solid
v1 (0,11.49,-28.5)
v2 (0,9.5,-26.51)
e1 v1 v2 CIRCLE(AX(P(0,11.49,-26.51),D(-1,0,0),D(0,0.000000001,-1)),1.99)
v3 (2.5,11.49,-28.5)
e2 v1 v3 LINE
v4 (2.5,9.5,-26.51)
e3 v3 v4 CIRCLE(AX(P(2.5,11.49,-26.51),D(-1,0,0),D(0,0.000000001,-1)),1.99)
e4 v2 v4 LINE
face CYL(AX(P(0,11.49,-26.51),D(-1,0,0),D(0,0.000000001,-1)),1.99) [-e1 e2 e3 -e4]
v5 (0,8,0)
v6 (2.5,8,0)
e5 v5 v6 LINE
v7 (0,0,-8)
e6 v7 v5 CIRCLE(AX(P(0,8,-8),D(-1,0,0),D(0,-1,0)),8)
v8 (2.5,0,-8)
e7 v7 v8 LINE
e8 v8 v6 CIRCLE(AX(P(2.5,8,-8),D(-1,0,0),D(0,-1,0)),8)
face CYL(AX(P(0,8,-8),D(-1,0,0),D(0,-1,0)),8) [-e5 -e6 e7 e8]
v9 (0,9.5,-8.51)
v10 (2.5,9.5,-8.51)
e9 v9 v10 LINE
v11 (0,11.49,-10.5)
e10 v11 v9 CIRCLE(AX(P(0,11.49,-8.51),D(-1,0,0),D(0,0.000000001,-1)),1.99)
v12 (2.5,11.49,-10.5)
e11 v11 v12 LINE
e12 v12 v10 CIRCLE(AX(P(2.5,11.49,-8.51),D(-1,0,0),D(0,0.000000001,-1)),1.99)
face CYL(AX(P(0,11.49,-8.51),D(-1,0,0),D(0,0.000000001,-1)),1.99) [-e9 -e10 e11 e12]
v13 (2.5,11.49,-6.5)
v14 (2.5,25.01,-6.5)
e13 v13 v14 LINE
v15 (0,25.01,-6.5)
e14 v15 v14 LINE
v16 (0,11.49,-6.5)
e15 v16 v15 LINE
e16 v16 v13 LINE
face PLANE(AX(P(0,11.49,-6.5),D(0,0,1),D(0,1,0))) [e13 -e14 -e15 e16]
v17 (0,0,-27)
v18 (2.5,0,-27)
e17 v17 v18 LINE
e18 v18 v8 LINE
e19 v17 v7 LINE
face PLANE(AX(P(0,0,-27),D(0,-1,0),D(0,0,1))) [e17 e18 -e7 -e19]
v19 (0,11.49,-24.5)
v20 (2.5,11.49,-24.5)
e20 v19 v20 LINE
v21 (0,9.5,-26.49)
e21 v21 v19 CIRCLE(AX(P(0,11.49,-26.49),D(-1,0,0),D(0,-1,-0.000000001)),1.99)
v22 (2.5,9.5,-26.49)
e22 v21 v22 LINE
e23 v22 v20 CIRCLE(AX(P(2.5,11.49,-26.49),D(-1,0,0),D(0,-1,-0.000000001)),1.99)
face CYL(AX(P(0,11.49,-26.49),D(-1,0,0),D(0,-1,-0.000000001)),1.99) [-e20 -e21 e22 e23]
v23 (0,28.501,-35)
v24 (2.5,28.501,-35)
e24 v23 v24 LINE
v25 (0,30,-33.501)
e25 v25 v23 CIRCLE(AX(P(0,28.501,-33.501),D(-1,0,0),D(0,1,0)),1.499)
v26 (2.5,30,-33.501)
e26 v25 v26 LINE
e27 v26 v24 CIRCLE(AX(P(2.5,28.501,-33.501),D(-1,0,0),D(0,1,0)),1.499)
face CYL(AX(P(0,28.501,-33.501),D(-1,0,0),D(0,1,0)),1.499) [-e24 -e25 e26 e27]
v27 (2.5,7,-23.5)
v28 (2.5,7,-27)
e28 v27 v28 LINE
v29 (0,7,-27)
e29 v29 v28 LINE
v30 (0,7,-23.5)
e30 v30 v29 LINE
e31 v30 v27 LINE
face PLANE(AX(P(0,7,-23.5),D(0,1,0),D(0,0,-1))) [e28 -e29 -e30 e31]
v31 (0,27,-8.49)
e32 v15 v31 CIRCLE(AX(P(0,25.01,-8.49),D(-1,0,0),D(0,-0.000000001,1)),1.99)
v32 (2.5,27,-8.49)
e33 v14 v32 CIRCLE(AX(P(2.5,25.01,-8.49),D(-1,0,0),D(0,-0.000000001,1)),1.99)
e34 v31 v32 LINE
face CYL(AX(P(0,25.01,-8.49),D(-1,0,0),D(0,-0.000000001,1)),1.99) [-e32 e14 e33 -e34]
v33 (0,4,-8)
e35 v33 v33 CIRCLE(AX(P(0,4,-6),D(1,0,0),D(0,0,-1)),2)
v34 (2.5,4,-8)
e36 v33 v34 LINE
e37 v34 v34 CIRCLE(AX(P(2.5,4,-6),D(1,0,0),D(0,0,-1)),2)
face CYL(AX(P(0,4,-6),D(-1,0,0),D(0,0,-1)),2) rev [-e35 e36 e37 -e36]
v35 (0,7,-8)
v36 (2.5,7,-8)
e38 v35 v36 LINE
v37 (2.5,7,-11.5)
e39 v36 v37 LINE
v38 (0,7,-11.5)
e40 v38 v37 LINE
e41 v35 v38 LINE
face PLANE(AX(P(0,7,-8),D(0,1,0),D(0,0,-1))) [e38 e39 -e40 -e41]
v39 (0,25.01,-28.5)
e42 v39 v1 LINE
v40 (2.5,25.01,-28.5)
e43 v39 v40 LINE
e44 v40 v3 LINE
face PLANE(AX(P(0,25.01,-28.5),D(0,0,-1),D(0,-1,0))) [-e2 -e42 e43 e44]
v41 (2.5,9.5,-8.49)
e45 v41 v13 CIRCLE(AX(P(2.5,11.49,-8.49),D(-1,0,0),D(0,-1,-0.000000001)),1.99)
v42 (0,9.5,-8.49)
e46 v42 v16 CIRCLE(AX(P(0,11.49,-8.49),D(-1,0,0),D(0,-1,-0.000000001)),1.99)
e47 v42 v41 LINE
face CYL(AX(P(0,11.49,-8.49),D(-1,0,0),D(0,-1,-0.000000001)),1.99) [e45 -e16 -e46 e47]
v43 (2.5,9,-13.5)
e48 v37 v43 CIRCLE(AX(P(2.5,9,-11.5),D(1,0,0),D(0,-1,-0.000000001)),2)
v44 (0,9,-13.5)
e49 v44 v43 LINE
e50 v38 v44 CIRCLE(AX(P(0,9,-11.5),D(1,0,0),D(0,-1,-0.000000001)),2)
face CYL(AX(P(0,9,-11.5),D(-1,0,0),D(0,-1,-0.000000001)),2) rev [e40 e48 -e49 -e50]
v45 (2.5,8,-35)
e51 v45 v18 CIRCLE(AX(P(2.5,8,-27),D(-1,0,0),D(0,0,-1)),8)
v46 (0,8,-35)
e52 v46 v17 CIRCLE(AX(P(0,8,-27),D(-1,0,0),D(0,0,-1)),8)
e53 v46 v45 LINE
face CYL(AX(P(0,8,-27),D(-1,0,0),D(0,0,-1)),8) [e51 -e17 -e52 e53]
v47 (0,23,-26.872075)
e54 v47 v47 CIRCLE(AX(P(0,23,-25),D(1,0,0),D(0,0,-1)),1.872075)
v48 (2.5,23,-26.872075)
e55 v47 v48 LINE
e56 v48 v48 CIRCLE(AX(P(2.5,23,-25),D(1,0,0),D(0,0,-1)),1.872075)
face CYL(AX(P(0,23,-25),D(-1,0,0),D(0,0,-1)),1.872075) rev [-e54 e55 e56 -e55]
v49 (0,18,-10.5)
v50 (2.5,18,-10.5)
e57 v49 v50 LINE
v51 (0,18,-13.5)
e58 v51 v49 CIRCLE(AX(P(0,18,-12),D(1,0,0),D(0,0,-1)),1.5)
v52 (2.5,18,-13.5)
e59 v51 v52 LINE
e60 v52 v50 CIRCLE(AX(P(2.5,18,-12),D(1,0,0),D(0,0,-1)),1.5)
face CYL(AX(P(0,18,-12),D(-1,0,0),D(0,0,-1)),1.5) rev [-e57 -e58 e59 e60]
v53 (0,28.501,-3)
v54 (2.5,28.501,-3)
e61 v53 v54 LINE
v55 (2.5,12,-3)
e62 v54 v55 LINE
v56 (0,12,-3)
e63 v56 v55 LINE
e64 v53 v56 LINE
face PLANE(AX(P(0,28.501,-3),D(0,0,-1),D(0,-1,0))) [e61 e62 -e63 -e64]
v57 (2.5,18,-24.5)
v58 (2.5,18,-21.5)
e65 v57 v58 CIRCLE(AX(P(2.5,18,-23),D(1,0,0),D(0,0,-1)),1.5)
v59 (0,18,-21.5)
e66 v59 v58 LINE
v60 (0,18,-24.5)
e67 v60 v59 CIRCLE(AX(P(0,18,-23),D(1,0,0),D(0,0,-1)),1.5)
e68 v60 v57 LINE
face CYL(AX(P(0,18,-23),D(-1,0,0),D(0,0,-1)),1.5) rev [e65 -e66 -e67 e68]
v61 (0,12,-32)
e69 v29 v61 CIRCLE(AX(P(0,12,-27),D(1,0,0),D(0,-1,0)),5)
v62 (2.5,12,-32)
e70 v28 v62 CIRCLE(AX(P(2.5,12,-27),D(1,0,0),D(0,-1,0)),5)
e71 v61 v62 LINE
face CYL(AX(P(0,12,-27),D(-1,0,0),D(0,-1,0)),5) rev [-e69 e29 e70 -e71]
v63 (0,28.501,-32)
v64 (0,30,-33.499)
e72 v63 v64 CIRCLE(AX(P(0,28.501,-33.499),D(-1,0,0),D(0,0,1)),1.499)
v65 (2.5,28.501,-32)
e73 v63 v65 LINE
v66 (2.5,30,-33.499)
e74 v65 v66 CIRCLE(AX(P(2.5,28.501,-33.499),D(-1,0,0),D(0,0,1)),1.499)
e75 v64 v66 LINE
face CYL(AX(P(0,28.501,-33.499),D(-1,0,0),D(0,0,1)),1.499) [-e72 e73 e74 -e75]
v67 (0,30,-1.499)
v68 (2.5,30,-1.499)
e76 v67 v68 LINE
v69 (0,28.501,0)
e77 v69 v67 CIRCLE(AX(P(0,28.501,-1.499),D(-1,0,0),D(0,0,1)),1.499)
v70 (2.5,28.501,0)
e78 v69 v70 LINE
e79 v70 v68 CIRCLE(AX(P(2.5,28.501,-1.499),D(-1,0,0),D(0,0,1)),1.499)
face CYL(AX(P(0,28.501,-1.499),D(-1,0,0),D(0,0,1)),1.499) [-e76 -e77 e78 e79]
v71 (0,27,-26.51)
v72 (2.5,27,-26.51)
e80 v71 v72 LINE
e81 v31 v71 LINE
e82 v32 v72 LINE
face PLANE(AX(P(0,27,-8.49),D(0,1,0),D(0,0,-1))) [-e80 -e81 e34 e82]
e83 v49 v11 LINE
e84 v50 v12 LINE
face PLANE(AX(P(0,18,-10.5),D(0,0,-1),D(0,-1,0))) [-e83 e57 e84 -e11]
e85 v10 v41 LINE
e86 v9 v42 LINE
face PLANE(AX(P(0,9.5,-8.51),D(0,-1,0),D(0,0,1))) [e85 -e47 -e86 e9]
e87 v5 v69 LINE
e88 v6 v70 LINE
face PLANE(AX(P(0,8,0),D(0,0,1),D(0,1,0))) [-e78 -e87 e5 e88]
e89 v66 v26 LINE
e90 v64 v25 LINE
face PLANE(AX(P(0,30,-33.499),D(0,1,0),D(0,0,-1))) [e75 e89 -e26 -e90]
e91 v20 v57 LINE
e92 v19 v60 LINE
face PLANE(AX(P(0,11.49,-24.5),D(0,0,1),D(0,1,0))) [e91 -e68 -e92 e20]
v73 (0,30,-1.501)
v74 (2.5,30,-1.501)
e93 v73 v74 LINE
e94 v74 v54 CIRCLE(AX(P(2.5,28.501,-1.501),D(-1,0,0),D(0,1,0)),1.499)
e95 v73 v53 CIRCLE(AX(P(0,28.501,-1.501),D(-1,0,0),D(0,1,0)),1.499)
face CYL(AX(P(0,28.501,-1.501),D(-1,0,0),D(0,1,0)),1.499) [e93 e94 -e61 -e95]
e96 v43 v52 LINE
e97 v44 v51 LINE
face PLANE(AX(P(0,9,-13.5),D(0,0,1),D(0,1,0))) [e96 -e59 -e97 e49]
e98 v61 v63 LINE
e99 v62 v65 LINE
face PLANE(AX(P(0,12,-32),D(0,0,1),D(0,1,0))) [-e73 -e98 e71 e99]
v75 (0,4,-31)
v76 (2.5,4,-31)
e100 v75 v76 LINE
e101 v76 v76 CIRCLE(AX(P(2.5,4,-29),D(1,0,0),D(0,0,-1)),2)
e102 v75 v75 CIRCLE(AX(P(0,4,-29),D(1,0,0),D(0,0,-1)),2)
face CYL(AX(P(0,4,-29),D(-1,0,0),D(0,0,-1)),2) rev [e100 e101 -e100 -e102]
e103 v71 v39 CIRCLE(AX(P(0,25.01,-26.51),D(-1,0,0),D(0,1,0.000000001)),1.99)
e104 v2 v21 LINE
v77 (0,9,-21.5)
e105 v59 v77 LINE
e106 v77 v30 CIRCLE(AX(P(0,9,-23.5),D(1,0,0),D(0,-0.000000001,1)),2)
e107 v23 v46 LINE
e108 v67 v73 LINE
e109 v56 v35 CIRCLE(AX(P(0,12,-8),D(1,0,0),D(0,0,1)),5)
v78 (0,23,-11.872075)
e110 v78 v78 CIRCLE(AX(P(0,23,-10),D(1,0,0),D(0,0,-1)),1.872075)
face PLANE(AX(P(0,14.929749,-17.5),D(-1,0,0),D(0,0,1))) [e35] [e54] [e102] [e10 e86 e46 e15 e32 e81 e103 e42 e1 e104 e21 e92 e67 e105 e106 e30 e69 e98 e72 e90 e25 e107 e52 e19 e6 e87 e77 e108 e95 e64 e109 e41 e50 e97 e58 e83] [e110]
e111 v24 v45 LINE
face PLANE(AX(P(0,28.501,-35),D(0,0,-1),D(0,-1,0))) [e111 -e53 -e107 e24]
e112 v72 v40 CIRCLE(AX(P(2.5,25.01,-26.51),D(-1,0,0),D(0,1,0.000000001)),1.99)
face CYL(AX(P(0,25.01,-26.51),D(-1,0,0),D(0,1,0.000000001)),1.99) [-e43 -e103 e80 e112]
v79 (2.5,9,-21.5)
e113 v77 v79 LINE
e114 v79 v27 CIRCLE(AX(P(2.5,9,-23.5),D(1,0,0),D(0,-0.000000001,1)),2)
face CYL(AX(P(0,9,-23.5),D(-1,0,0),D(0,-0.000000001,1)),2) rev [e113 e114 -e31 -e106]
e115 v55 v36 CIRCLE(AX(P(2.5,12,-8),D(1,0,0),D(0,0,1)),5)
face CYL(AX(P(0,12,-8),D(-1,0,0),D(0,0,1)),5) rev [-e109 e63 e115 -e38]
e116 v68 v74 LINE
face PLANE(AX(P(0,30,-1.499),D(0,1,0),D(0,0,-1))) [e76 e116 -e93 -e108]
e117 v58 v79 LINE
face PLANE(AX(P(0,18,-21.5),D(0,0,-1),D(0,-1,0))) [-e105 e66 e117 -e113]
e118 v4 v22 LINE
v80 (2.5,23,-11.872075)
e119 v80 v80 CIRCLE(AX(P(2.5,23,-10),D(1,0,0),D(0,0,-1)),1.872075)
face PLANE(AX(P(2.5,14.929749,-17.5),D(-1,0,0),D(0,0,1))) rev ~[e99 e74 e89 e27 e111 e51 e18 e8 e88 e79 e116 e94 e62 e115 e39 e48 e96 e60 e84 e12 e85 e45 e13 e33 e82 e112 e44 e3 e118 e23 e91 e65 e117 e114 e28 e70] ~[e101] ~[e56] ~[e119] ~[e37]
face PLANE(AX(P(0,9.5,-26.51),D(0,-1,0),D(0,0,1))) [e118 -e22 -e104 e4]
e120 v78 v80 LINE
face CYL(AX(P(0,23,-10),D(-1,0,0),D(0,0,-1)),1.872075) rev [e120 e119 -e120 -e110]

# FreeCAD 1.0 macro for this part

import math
import FreeCAD as App
import Part
import Sketcher
from FreeCAD import Vector

doc = App.newDocument("Part")
params = doc.addObject("Spreadsheet::Sheet", "Params")
for row, (alias, value) in enumerate([
    ("sketch1_diameter", "4 mm"),
    ("sketch1_radius", "5 mm"),
    ("sketch1_radius2", "8 mm"),
    ("sketch1_radius3", "1.5 mm"),
    ("sketch1_width", "9 mm"),
    ("pad1_length", "2.5 mm"),
], start=1):
    params.set(f"A{row}", alias)
    params.set(f"B{row}", "=" + value)
    params.setAlias(f"B{row}", alias)

body = doc.addObject("PartDesign::Body", "Body")

sketch1 = body.newObject("Sketcher::SketchObject", "Sketch")
sketch1.AttachmentSupport = (doc.getObject("YZ_Plane"), [""])
sketch1.MapMode = "FlatFace"
sketch1.addGeometry(Part.LineSegment(Vector(7, -27, 0), Vector(7, -23.5, 0)), False)
sketch1.addGeometry(Part.ArcOfCircle(Part.Circle(Vector(9, -23.5, 0), Vector(0, 0, 1), 2), math.radians(90), math.radians(180)), False)
sketch1.addGeometry(Part.LineSegment(Vector(9, -21.5, 0), Vector(18, -21.5, 0)), False)
sketch1.addGeometry(Part.ArcOfCircle(Part.Circle(Vector(18, -23, 0), Vector(0, 0, 1), 1.5), math.radians(-90), math.radians(90)), False)
sketch1.addGeometry(Part.LineSegment(Vector(18, -24.5, 0), Vector(11.49, -24.5, 0)), False)
sketch1.addGeometry(Part.ArcOfCircle(Part.Circle(Vector(11.49, -26.49, 0), Vector(0, 0, 1), 1.99), math.radians(90), math.radians(180)), False)
sketch1.addGeometry(Part.LineSegment(Vector(9.5, -26.49, 0), Vector(9.5, -26.51, 0)), False)
sketch1.addGeometry(Part.ArcOfCircle(Part.Circle(Vector(11.49, -26.51, 0), Vector(0, 0, 1), 1.99), math.radians(180), math.radians(270)), False)
sketch1.addGeometry(Part.LineSegment(Vector(11.49, -28.5, 0), Vector(25.01, -28.5, 0)), False)
sketch1.addGeometry(Part.ArcOfCircle(Part.Circle(Vector(25.01, -26.51, 0), Vector(0, 0, 1), 1.99), math.radians(-90), math.radians(0)), False)
sketch1.addGeometry(Part.LineSegment(Vector(27, -26.51, 0), Vector(27, -8.49, 0)), False)
sketch1.addGeometry(Part.ArcOfCircle(Part.Circle(Vector(25.01, -8.49, 0), Vector(0, 0, 1), 1.99), math.radians(0), math.radians(90)), False)
sketch1.addGeometry(Part.LineSegment(Vector(25.01, -6.5, 0), Vector(11.49, -6.5, 0)), False)
sketch1.addGeometry(Part.ArcOfCircle(Part.Circle(Vector(11.49, -8.49, 0), Vector(0, 0, 1), 1.99), math.radians(90), math.radians(180)), False)
sketch1.addGeometry(Part.LineSegment(Vector(9.5, -8.49, 0), Vector(9.5, -8.51, 0)), False)
sketch1.addGeometry(Part.ArcOfCircle(Part.Circle(Vector(11.49, -8.51, 0), Vector(0, 0, 1), 1.99), math.radians(180), math.radians(270)), False)
sketch1.addGeometry(Part.LineSegment(Vector(11.49, -10.5, 0), Vector(18, -10.5, 0)), False)
sketch1.addGeometry(Part.ArcOfCircle(Part.Circle(Vector(18, -12, 0), Vector(0, 0, 1), 1.5), math.radians(-90), math.radians(90)), False)
sketch1.addGeometry(Part.LineSegment(Vector(18, -13.5, 0), Vector(9, -13.5, 0)), False)
sketch1.addGeometry(Part.ArcOfCircle(Part.Circle(Vector(9, -11.5, 0), Vector(0, 0, 1), 2), math.radians(-180), math.radians(-90)), False)
sketch1.addGeometry(Part.LineSegment(Vector(7, -11.5, 0), Vector(7, -8, 0)), False)
sketch1.addGeometry(Part.ArcOfCircle(Part.Circle(Vector(12, -8, 0), Vector(0, 0, 1), 5), math.radians(90), math.radians(180)), False)
sketch1.addGeometry(Part.LineSegment(Vector(12, -3, 0), Vector(28.501, -3, 0)), False)
sketch1.addGeometry(Part.ArcOfCircle(Part.Circle(Vector(28.501, -1.501, 0), Vector(0, 0, 1), 1.499), math.radians(-90), math.radians(0)), False)
sketch1.addGeometry(Part.LineSegment(Vector(30, -1.501, 0), Vector(30, -1.499, 0)), False)
sketch1.addGeometry(Part.ArcOfCircle(Part.Circle(Vector(28.501, -1.499, 0), Vector(0, 0, 1), 1.499), math.radians(0), math.radians(90)), False)
sketch1.addGeometry(Part.LineSegment(Vector(28.501, 0, 0), Vector(8, 0, 0)), False)
sketch1.addGeometry(Part.ArcOfCircle(Part.Circle(Vector(8, -8, 0), Vector(0, 0, 1), 8), math.radians(90), math.radians(180)), False)
sketch1.addGeometry(Part.LineSegment(Vector(0, -8, 0), Vector(0, -27, 0)), False)
sketch1.addGeometry(Part.ArcOfCircle(Part.Circle(Vector(8, -27, 0), Vector(0, 0, 1), 8), math.radians(-180), math.radians(-90)), False)
sketch1.addGeometry(Part.LineSegment(Vector(8, -35, 0), Vector(28.501, -35, 0)), False)
sketch1.addGeometry(Part.ArcOfCircle(Part.Circle(Vector(28.501, -33.501, 0), Vector(0, 0, 1), 1.499), math.radians(-90), math.radians(0)), False)
sketch1.addGeometry(Part.LineSegment(Vector(30, -33.501, 0), Vector(30, -33.499, 0)), False)
sketch1.addGeometry(Part.ArcOfCircle(Part.Circle(Vector(28.501, -33.499, 0), Vector(0, 0, 1), 1.499), math.radians(0), math.radians(90)), False)
sketch1.addGeometry(Part.LineSegment(Vector(28.501, -32, 0), Vector(12, -32, 0)), False)
sketch1.addGeometry(Part.ArcOfCircle(Part.Circle(Vector(12, -27, 0), Vector(0, 0, 1), 5), math.radians(180), math.radians(270)), False)
sketch1.addGeometry(Part.Circle(Vector(4, -29, 0), Vector(0, 0, 1), 2), False)
sketch1.addGeometry(Part.Circle(Vector(4, -6, 0), Vector(0, 0, 1), 2), False)
sketch1.addGeometry(Part.Circle(Vector(23, -25, 0), Vector(0, 0, 1), 1.8721), False)
sketch1.addGeometry(Part.Circle(Vector(23, -10, 0), Vector(0, 0, 1), 1.8721), False)
sketch1.addConstraint(Sketcher.Constraint("Tangent", 0, 2, 1, 2))
sketch1.addConstraint(Sketcher.Constraint("Tangent", 1, 1, 2, 1))
sketch1.addConstraint(Sketcher.Constraint("Tangent", 2, 2, 3, 2))
sketch1.addConstraint(Sketcher.Constraint("Tangent", 3, 1, 4, 1))
sketch1.addConstraint(Sketcher.Constraint("Tangent", 4, 2, 5, 1))
sketch1.addConstraint(Sketcher.Constraint("Tangent", 5, 2, 6, 1))
sketch1.addConstraint(Sketcher.Constraint("Tangent", 6, 2, 7, 1))
sketch1.addConstraint(Sketcher.Constraint("Tangent", 7, 2, 8, 1))
sketch1.addConstraint(Sketcher.Constraint("Tangent", 8, 2, 9, 1))
sketch1.addConstraint(Sketcher.Constraint("Tangent", 9, 2, 10, 1))
sketch1.addConstraint(Sketcher.Constraint("Tangent", 10, 2, 11, 1))
sketch1.addConstraint(Sketcher.Constraint("Tangent", 11, 2, 12, 1))
sketch1.addConstraint(Sketcher.Constraint("Tangent", 12, 2, 13, 1))
sketch1.addConstraint(Sketcher.Constraint("Tangent", 13, 2, 14, 1))
sketch1.addConstraint(Sketcher.Constraint("Tangent", 14, 2, 15, 1))
sketch1.addConstraint(Sketcher.Constraint("Tangent", 15, 2, 16, 1))
sketch1.addConstraint(Sketcher.Constraint("Tangent", 16, 2, 17, 2))
sketch1.addConstraint(Sketcher.Constraint("Tangent", 17, 1, 18, 1))
sketch1.addConstraint(Sketcher.Constraint("Tangent", 18, 2, 19, 2))
sketch1.addConstraint(Sketcher.Constraint("Tangent", 19, 1, 20, 1))
sketch1.addConstraint(Sketcher.Constraint("Tangent", 20, 2, 21, 2))
sketch1.addConstraint(Sketcher.Constraint("Tangent", 21, 1, 22, 1))
sketch1.addConstraint(Sketcher.Constraint("Tangent", 22, 2, 23, 1))
sketch1.addConstraint(Sketcher.Constraint("Tangent", 23, 2, 24, 1))
sketch1.addConstraint(Sketcher.Constraint("Coincident", 24, 2, 25, 1))
sketch1.addConstraint(Sketcher.Constraint("Tangent", 25, 2, 26, 1))
sketch1.addConstraint(Sketcher.Constraint("Tangent", 26, 2, 27, 1))
sketch1.addConstraint(Sketcher.Constraint("Tangent", 27, 2, 28, 1))
sketch1.addConstraint(Sketcher.Constraint("Tangent", 28, 2, 29, 1))
sketch1.addConstraint(Sketcher.Constraint("Tangent", 29, 2, 30, 1))
sketch1.addConstraint(Sketcher.Constraint("Tangent", 30, 2, 31, 1))
sketch1.addConstraint(Sketcher.Constraint("Tangent", 31, 2, 32, 1))
sketch1.addConstraint(Sketcher.Constraint("Coincident", 32, 2, 33, 1))
sketch1.addConstraint(Sketcher.Constraint("Tangent", 33, 2, 34, 1))
sketch1.addConstraint(Sketcher.Constraint("Tangent", 34, 2, 35, 2))
sketch1.addConstraint(Sketcher.Constraint("Tangent", 35, 1, 0, 1))
sketch1.addConstraint(Sketcher.Constraint("Vertical", 0))
sketch1.addConstraint(Sketcher.Constraint("Horizontal", 2))
sketch1.addConstraint(Sketcher.Constraint("Horizontal", 4))
sketch1.addConstraint(Sketcher.Constraint("Vertical", 6))
sketch1.addConstraint(Sketcher.Constraint("Horizontal", 8))
sketch1.addConstraint(Sketcher.Constraint("Vertical", 10))
sketch1.addConstraint(Sketcher.Constraint("Horizontal", 12))
sketch1.addConstraint(Sketcher.Constraint("Vertical", 14))
sketch1.addConstraint(Sketcher.Constraint("Horizontal", 16))
sketch1.addConstraint(Sketcher.Constraint("Horizontal", 18))
sketch1.addConstraint(Sketcher.Constraint("Vertical", 20))
sketch1.addConstraint(Sketcher.Constraint("Horizontal", 22))
sketch1.addConstraint(Sketcher.Constraint("Horizontal", 26))
sketch1.addConstraint(Sketcher.Constraint("Vertical", 28))
sketch1.addConstraint(Sketcher.Constraint("Horizontal", 30))
sketch1.addConstraint(Sketcher.Constraint("Horizontal", 34))
sketch1.addConstraint(Sketcher.Constraint("Equal", 5, 7))
sketch1.addConstraint(Sketcher.Constraint("Equal", 7, 9))
sketch1.addConstraint(Sketcher.Constraint("Equal", 9, 11))
sketch1.addConstraint(Sketcher.Constraint("Equal", 11, 13))
sketch1.addConstraint(Sketcher.Constraint("Equal", 13, 15))
sketch1.addConstraint(Sketcher.Constraint("Equal", 3, 17))
sketch1.addConstraint(Sketcher.Constraint("Equal", 1, 19))
sketch1.addConstraint(Sketcher.Constraint("Equal", 23, 25))
sketch1.addConstraint(Sketcher.Constraint("Equal", 27, 29))
sketch1.addConstraint(Sketcher.Constraint("Equal", 25, 31))
sketch1.addConstraint(Sketcher.Constraint("Equal", 31, 33))
sketch1.addConstraint(Sketcher.Constraint("Equal", 21, 35))
sketch1.addConstraint(Sketcher.Constraint("Equal", 19, 36))
sketch1.addConstraint(Sketcher.Constraint("Equal", 36, 37))
sketch1.addConstraint(Sketcher.Constraint("Equal", 38, 39))
sketch1.addConstraint(Sketcher.Constraint("PointOnObject", 25, 2, -1))
sketch1.addConstraint(Sketcher.Constraint("PointOnObject", 27, 2, -2))
sketch1.addConstraint(Sketcher.Constraint("Horizontal", 21, 3, 27, 3))
sketch1.addConstraint(Sketcher.Constraint("Horizontal", 29, 3, 35, 3))
sketch1.addConstraint(Sketcher.Constraint("Horizontal", 25, 3, 24, 2))
sketch1.addConstraint(Sketcher.Constraint("Horizontal", 33, 3, 32, 2))
sketch1.addConstraint(Sketcher.Constraint("Vertical", 7, 3, 13, 3))
sketch1.addConstraint(Sketcher.Constraint("Vertical", 3, 3, 17, 3))
sketch1.addConstraint(Sketcher.Constraint("Vertical", 1, 3, 19, 3))
sketch1.addConstraint(Sketcher.Constraint("Vertical", 25, 3, 31, 3))
sketch1.addConstraint(Sketcher.Constraint("Vertical", 36, 3, 37, 3))
sketch1.addConstraint(Sketcher.Constraint("Vertical", 38, 3, 39, 3))
sketch1.addConstraint(Sketcher.Constraint("Equal", 6, 14))
sketch1.addConstraint(Sketcher.Constraint("Equal", 0, 20))
sketch1.addConstraint(Sketcher.Constraint("Equal", 24, 32))
sketch1.addConstraint(Sketcher.Constraint("Diameter", 36, 4.0))
sketch1.addConstraint(Sketcher.Constraint("Radius", 21, 5.0))
sketch1.addConstraint(Sketcher.Constraint("Radius", 27, 8.0))
sketch1.addConstraint(Sketcher.Constraint("Radius", 3, 1.5))
sketch1.addConstraint(Sketcher.Constraint("DistanceX", 2, 1, 2, 2, 9.0))
sketch1.addConstraint(Sketcher.Constraint("DistanceY", 28, 2, 28, 1, 19.0))
sketch1.addConstraint(Sketcher.Constraint("Radius", 5, 1.99))
sketch1.addConstraint(Sketcher.Constraint("DistanceY", 0, 1, 0, 2, 3.5))
sketch1.addConstraint(Sketcher.Constraint("DistanceX", -1, 1, 1, 3, 9.0))
sketch1.addConstraint(Sketcher.Constraint("DistanceX", -1, 1, 36, 3, 4.0))
sketch1.addConstraint(Sketcher.Constraint("DistanceY", 36, 3, -1, 1, 29.0))
sketch1.addConstraint(Sketcher.Constraint("DistanceY", 37, 3, -1, 1, 6.0))
sketch1.addConstraint(Sketcher.Constraint("DistanceX", -1, 1, 38, 3, 23.0))
sketch1.addConstraint(Sketcher.Constraint("DistanceY", 38, 3, -1, 1, 25.0))
sketch1.addConstraint(Sketcher.Constraint("DistanceY", 39, 3, -1, 1, 10.0))
sketch1.addConstraint(Sketcher.Constraint("DistanceX", -1, 1, 9, 2, 27.0))
sketch1.addConstraint(Sketcher.Constraint("DistanceX", -1, 1, 23, 2, 30.0))
sketch1.addConstraint(Sketcher.Constraint("Radius", 23, 1.499))
sketch1.addConstraint(Sketcher.Constraint("DistanceY", 5, 3, 11, 3, 18.0))
sketch1.addConstraint(Sketcher.Constraint("DistanceX", 4, 2, 4, 1, 6.51))
sketch1.addConstraint(Sketcher.Constraint("Diameter", 38, 3.744151))
sketch1.addConstraint(Sketcher.Constraint("DistanceY", 24, 1, 24, 2, 0.002))
sketch1.setExpression("Constraints[82]", "Params.sketch1_diameter")
sketch1.setExpression("Constraints[83]", "Params.sketch1_radius")
sketch1.setExpression("Constraints[84]", "Params.sketch1_radius2")
sketch1.setExpression("Constraints[85]", "Params.sketch1_radius3")
sketch1.setExpression("Constraints[86]", "Params.sketch1_width")
pad1 = body.newObject("PartDesign::Pad", "Pad")
pad1.Profile = sketch1
pad1.setExpression("Length", "Params.pad1_length")

doc.recompute()
